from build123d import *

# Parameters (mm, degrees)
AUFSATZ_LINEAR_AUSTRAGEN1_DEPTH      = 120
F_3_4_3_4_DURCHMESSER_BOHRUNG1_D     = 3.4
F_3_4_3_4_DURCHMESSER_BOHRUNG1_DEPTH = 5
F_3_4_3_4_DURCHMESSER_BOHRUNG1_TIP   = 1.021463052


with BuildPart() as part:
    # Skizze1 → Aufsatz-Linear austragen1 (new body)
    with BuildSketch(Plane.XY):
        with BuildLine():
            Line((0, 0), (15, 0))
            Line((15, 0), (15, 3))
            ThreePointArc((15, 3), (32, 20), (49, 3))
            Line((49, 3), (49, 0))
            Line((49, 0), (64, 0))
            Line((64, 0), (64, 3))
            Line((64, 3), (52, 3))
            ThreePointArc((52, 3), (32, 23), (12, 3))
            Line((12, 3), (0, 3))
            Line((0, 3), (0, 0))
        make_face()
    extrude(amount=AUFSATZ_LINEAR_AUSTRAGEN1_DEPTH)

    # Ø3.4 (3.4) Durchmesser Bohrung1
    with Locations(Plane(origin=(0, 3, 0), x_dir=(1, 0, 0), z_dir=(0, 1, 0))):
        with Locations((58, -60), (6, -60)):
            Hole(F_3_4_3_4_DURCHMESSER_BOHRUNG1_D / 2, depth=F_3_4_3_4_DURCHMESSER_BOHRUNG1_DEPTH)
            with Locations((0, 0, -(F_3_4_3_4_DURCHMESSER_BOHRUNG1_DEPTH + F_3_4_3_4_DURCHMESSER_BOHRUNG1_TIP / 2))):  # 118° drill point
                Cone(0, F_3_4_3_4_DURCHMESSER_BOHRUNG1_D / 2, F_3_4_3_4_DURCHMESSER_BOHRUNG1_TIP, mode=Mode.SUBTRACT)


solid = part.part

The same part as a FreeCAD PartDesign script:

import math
import FreeCAD as App
import Part
import Sketcher
from FreeCAD import Vector
Q = App.Units.Quantity

doc = App.newDocument("Part")
body = doc.addObject("PartDesign::Body", "Body")

sketch1 = doc.addObject("Sketcher::SketchObject", "Sketch")
body.addObject(sketch1)
sketch1.AttachmentSupport = (doc.XY_Plane, [""])
sketch1.MapMode = "FlatFace"
sketch1.addGeometry([
    Part.LineSegment(Vector(0, 0, 0), Vector(15, 0, 0)),
    Part.LineSegment(Vector(15, 0, 0), Vector(15, 3, 0)),
    Part.ArcOfCircle(Part.Circle(Vector(32, 3, 0), Vector(0, 0, 1), 17), math.radians(0), math.radians(180)),
    Part.LineSegment(Vector(49, 3, 0), Vector(49, 0, 0)),
    Part.LineSegment(Vector(49, 0, 0), Vector(64, 0, 0)),
    Part.LineSegment(Vector(64, 0, 0), Vector(64, 3, 0)),
    Part.LineSegment(Vector(64, 3, 0), Vector(52, 3, 0)),
    Part.ArcOfCircle(Part.Circle(Vector(32, 3, 0), Vector(0, 0, 1), 20), math.radians(0), math.radians(180)),
    Part.LineSegment(Vector(12, 3, 0), Vector(0, 3, 0)),
    Part.LineSegment(Vector(0, 3, 0), Vector(0, 0, 0)),
], False)
sketch1.addConstraint([
    Sketcher.Constraint("Coincident", 0, 2, 1, 1),
    Sketcher.Constraint("Tangent", 1, 2, 2, 2),
    Sketcher.Constraint("Tangent", 2, 1, 3, 1),
    Sketcher.Constraint("Coincident", 3, 2, 4, 1),
    Sketcher.Constraint("Coincident", 4, 2, 5, 1),
    Sketcher.Constraint("Coincident", 5, 2, 6, 1),
    Sketcher.Constraint("Coincident", 6, 2, 7, 1),
    Sketcher.Constraint("Coincident", 7, 2, 8, 1),
    Sketcher.Constraint("Coincident", 8, 2, 9, 1),
    Sketcher.Constraint("Coincident", 9, 2, 0, 1),
    Sketcher.Constraint("Horizontal", 0),
    Sketcher.Constraint("Vertical", 1),
    Sketcher.Constraint("Vertical", 3),
    Sketcher.Constraint("Horizontal", 4),
    Sketcher.Constraint("Vertical", 5),
    Sketcher.Constraint("Horizontal", 6),
    Sketcher.Constraint("Horizontal", 8),
    Sketcher.Constraint("Vertical", 9),
    Sketcher.Constraint("Coincident", 9, 2, -1, 1),
    Sketcher.Constraint("Coincident", 7, 3, 2, 3),
    Sketcher.Constraint("PointOnObject", 3, 2, -1),
    Sketcher.Constraint("Horizontal", 2, 1, 5, 2),
    Sketcher.Constraint("Horizontal", 6, 2, 7, 2),
    Sketcher.Constraint("Equal", 0, 4),
    Sketcher.Constraint("Radius", 2, Q("17 mm")),
    Sketcher.Constraint("Radius", 7, Q("20 mm")),
    Sketcher.Constraint("DistanceX", 0, 1, 0, 2, Q("15 mm")),
    Sketcher.Constraint("DistanceY", 1, 1, 1, 2, Q("3 mm")),
])
pad1 = doc.addObject("PartDesign::Pad", "Pad")
body.addObject(pad1)
pad1.Profile = sketch1
pad1.Length = 120

sketch2 = doc.addObject("Sketcher::SketchObject", "Sketch001")
body.addObject(sketch2)
sketch2.AttachmentSupport = (doc.XZ_Plane, [""])
sketch2.MapMode = "FlatFace"
sketch2.AttachmentOffset = App.Placement(Vector(0, 0, -3), App.Rotation())
sketch2.addGeometry([
    Part.Circle(Vector(58, 60, 0), Vector(0, 0, 1), 1.7),
    Part.Circle(Vector(6, 60, 0), Vector(0, 0, 1), 1.7),
], False)
sketch2.addConstraint([
    Sketcher.Constraint("Equal", 0, 1),
    Sketcher.Constraint("Horizontal", 0, 3, 1, 3),
    Sketcher.Constraint("Diameter", 0, Q("3.4 mm")),
    Sketcher.Constraint("DistanceX", -1, 1, 0, 3, Q("58 mm")),
    Sketcher.Constraint("DistanceY", -1, 1, 0, 3, Q("60 mm")),
    Sketcher.Constraint("DistanceX", -1, 1, 1, 3, Q("6 mm")),
])
doc.recompute()
hole = doc.addObject("PartDesign::Hole", "Hole")
body.addObject(hole)
hole.Profile = sketch2
hole.ThreadType = "None"
hole.Diameter = 3.4
hole.DepthType = "Dimension"
hole.Depth = 5
hole.DrillPoint = "Angled"
hole.DrillPointAngle = 118
hole.Reversed = True

doc.recompute()
